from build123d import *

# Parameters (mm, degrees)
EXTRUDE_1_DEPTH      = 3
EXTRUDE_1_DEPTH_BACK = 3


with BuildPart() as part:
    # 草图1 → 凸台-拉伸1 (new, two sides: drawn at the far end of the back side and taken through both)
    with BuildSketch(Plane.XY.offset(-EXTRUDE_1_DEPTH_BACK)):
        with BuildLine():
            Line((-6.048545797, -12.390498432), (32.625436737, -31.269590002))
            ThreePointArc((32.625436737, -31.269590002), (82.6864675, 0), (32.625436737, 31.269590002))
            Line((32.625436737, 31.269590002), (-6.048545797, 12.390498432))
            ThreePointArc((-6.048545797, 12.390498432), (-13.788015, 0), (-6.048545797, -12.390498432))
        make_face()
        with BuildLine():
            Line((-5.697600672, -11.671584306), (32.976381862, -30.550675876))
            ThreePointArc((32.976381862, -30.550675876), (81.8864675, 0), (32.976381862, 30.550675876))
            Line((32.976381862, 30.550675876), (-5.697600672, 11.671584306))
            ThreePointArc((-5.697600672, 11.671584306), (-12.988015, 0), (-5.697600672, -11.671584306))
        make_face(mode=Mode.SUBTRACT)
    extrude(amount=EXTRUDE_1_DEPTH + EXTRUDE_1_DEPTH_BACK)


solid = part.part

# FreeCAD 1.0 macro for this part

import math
import FreeCAD as App
import Part
import Sketcher

V = App.Vector
Q = App.Units.Quantity

doc = App.newDocument("Part")
body = doc.addObject("PartDesign::Body", "Body")

# Sketch on XY plane
sketch1 = body.newObject("Sketcher::SketchObject", "Sketch")
sketch1.AttachmentSupport = (doc.getObject("XY_Plane"), [""])
sketch1.MapMode = "FlatFace"
sketch1.addGeometry(Part.LineSegment(V(-6, -12, 0), V(33, -31, 0)), False)
sketch1.addGeometry(Part.ArcOfCircle(Part.Circle(V(48, 0, 0), V(0, 0, 1), 35), math.radians(-116), math.radians(116)), False)
sketch1.addGeometry(Part.LineSegment(V(33, 31, 0), V(-6, 12, 0)), False)
sketch1.addGeometry(Part.ArcOfCircle(Part.Circle(V(0, 0, 0), V(0, 0, 1), 14), math.radians(116), math.radians(244)), False)
sketch1.addGeometry(Part.LineSegment(V(33, -31, 0), V(-6, -12, 0)), False)
sketch1.addGeometry(Part.ArcOfCircle(Part.Circle(V(0, 0, 0), V(0, 0, 1), 13), math.radians(116), math.radians(244)), False)
sketch1.addGeometry(Part.LineSegment(V(-6, 12, 0), V(33, 31, 0)), False)
sketch1.addGeometry(Part.ArcOfCircle(Part.Circle(V(48, 0, 0), V(0, 0, 1), 34), math.radians(-116), math.radians(116)), False)
sketch1.addConstraint(Sketcher.Constraint("Tangent", 0, 2, 1, 1))
sketch1.addConstraint(Sketcher.Constraint("Tangent", 1, 2, 2, 1))
sketch1.addConstraint(Sketcher.Constraint("Tangent", 2, 2, 3, 1))
sketch1.addConstraint(Sketcher.Constraint("Tangent", 3, 2, 0, 1))
sketch1.addConstraint(Sketcher.Constraint("Tangent", 4, 2, 5, 2))
sketch1.addConstraint(Sketcher.Constraint("Tangent", 5, 1, 6, 1))
sketch1.addConstraint(Sketcher.Constraint("Tangent", 6, 2, 7, 2))
sketch1.addConstraint(Sketcher.Constraint("Tangent", 7, 1, 4, 1))
sketch1.addConstraint(Sketcher.Constraint("Coincident", 3, 3, -1, 1))
sketch1.addConstraint(Sketcher.Constraint("Coincident", 5, 3, -1, 1))
sketch1.addConstraint(Sketcher.Constraint("Coincident", 7, 3, 1, 3))
sketch1.addConstraint(Sketcher.Constraint("PointOnObject", 1, 3, -1))
sketch1.addConstraint(Sketcher.Constraint("Parallel", 0, 4))
sketch1.addConstraint(Sketcher.Constraint("DistanceX", -1, 1, 1, 3, Q("47.89 mm")))
sketch1.addConstraint(Sketcher.Constraint("Radius", 1, Q("34.796467 mm")))
sketch1.addConstraint(Sketcher.Constraint("Radius", 3, Q("13.788015 mm")))
sketch1.addConstraint(Sketcher.Constraint("Radius", 5, Q("12.988015 mm")))
pad1 = body.newObject("PartDesign::Pad", "Pad")
pad1.Profile = sketch1
pad1.Type = "TwoLengths"
pad1.Length = 3
pad1.Length2 = 3

doc.recompute()
